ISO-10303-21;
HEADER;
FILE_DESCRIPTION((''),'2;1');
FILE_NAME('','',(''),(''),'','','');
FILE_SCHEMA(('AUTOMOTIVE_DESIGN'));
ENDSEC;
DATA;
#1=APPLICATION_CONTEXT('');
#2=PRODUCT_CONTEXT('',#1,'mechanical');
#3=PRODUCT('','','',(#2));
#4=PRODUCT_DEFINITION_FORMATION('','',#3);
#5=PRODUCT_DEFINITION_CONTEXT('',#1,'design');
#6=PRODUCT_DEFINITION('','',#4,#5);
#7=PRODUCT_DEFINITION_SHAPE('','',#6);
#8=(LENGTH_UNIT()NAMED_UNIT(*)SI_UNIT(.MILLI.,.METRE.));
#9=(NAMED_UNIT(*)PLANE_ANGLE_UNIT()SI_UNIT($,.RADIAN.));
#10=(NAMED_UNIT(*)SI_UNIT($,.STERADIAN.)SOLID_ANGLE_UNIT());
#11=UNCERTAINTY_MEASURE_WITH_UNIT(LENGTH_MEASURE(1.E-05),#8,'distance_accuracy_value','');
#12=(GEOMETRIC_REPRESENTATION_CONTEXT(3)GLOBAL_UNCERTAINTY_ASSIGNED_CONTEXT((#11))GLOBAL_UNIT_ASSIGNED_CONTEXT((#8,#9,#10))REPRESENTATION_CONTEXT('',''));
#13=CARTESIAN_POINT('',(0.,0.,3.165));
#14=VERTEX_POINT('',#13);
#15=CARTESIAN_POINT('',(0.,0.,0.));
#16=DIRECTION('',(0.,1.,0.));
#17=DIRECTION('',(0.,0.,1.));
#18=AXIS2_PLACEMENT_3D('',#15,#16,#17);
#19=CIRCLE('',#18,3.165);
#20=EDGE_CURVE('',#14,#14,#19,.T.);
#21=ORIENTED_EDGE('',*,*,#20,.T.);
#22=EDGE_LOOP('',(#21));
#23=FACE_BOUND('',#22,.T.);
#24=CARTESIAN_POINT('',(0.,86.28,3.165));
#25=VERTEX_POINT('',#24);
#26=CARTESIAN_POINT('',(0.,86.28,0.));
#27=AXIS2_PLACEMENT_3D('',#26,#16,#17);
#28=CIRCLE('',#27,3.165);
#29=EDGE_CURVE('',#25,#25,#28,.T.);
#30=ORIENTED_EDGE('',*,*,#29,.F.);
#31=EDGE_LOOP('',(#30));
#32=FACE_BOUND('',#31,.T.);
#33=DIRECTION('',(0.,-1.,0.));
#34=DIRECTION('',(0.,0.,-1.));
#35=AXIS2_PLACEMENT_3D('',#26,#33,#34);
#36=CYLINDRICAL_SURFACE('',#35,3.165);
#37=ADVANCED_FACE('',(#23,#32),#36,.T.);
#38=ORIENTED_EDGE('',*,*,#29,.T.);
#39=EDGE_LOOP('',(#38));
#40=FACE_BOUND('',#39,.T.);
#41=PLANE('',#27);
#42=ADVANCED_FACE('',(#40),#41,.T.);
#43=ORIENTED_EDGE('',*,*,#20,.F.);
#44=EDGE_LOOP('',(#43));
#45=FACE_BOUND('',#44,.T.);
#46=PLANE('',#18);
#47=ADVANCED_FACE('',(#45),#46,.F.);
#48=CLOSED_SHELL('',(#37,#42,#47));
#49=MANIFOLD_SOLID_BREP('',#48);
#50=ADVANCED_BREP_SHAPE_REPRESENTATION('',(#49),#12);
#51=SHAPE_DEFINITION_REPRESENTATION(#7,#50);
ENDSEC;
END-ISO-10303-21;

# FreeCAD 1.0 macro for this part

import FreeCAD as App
import Part
import Sketcher

V = App.Vector
Q = App.Units.Quantity

doc = App.newDocument("Part")
body = doc.addObject("PartDesign::Body", "Body")

# Sketch on XZ plane
sketch1 = body.newObject("Sketcher::SketchObject", "Sketch")
sketch1.AttachmentSupport = (doc.getObject("XZ_Plane"), [""])
sketch1.MapMode = "FlatFace"
sketch1.addGeometry(Part.Circle(V(0, 0, 0), V(0, 0, 1), 3.2), False)
sketch1.addConstraint([
    Sketcher.Constraint("Coincident", 0, 3, -1, 1),
    Sketcher.Constraint("Diameter", 0, Q("6.33 mm")),
])
pad1 = body.newObject("PartDesign::Pad", "Pad")
pad1.Profile = sketch1
pad1.Length = 86.28
pad1.Reversed = True

doc.recompute()
